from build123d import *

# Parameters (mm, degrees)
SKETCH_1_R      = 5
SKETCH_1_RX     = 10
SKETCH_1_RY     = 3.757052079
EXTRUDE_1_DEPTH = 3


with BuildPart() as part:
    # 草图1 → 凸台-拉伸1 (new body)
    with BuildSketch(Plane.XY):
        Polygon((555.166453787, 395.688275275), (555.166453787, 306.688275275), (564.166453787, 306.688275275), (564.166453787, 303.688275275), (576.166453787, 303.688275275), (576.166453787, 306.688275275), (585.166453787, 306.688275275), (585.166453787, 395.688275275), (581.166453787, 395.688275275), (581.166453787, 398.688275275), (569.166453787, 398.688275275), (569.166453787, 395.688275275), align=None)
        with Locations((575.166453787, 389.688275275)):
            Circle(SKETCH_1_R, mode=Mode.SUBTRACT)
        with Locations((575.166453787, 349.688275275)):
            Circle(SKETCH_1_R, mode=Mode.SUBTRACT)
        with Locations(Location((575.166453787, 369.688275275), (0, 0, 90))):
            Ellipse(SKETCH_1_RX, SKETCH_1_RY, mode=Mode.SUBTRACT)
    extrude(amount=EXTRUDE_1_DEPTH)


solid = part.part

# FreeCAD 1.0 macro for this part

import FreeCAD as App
import Part
import Sketcher
from FreeCAD import Vector

doc = App.newDocument("Part")
body = doc.addObject("PartDesign::Body", "Body")

sketch1 = body.newObject("Sketcher::SketchObject", "Sketch")
sketch1.AttachmentSupport = (doc.getObject("XY_Plane"), [""])
sketch1.MapMode = "FlatFace"
sketch1.addGeometry(Part.LineSegment(Vector(555.166454, 395.688275, 0), Vector(555.166454, 306.688275, 0)), False)
sketch1.addGeometry(Part.LineSegment(Vector(555.166454, 306.688275, 0), Vector(564.166454, 306.688275, 0)), False)
sketch1.addGeometry(Part.LineSegment(Vector(564.166454, 306.688275, 0), Vector(564.166454, 303.688275, 0)), False)
sketch1.addGeometry(Part.LineSegment(Vector(564.166454, 303.688275, 0), Vector(576.166454, 303.688275, 0)), False)
sketch1.addGeometry(Part.LineSegment(Vector(576.166454, 303.688275, 0), Vector(576.166454, 306.688275, 0)), False)
sketch1.addGeometry(Part.LineSegment(Vector(576.166454, 306.688275, 0), Vector(585.166454, 306.688275, 0)), False)
sketch1.addGeometry(Part.LineSegment(Vector(585.166454, 306.688275, 0), Vector(585.166454, 395.688275, 0)), False)
sketch1.addGeometry(Part.LineSegment(Vector(585.166454, 395.688275, 0), Vector(581.166454, 395.688275, 0)), False)
sketch1.addGeometry(Part.LineSegment(Vector(581.166454, 395.688275, 0), Vector(581.166454, 398.688275, 0)), False)
sketch1.addGeometry(Part.LineSegment(Vector(581.166454, 398.688275, 0), Vector(569.166454, 398.688275, 0)), False)
sketch1.addGeometry(Part.LineSegment(Vector(569.166454, 398.688275, 0), Vector(569.166454, 395.688275, 0)), False)
sketch1.addGeometry(Part.LineSegment(Vector(569.166454, 395.688275, 0), Vector(555.166454, 395.688275, 0)), False)
sketch1.addGeometry(Part.Circle(Vector(575.166454, 349.688275, 0), Vector(0, 0, 1), 5), False)
sketch1.addGeometry(Part.Ellipse(Vector(575.166454, 379.688275, 0), Vector(571.409402, 369.688275, 0), Vector(575.166454, 369.688275, 0)), False)
sketch1.addGeometry(Part.Circle(Vector(575.166454, 389.688275, 0), Vector(0, 0, 1), 5), False)
sketch1.addConstraint(Sketcher.Constraint("Block", 13))
sketch1.addConstraint(Sketcher.Constraint("Coincident", 0, 2, 1, 1))
sketch1.addConstraint(Sketcher.Constraint("Coincident", 1, 2, 2, 1))
sketch1.addConstraint(Sketcher.Constraint("Coincident", 2, 2, 3, 1))
sketch1.addConstraint(Sketcher.Constraint("Coincident", 3, 2, 4, 1))
sketch1.addConstraint(Sketcher.Constraint("Coincident", 4, 2, 5, 1))
sketch1.addConstraint(Sketcher.Constraint("Coincident", 5, 2, 6, 1))
sketch1.addConstraint(Sketcher.Constraint("Coincident", 6, 2, 7, 1))
sketch1.addConstraint(Sketcher.Constraint("Coincident", 7, 2, 8, 1))
sketch1.addConstraint(Sketcher.Constraint("Coincident", 8, 2, 9, 1))
sketch1.addConstraint(Sketcher.Constraint("Coincident", 9, 2, 10, 1))
sketch1.addConstraint(Sketcher.Constraint("Coincident", 10, 2, 11, 1))
sketch1.addConstraint(Sketcher.Constraint("Coincident", 11, 2, 0, 1))
sketch1.addConstraint(Sketcher.Constraint("Vertical", 0))
sketch1.addConstraint(Sketcher.Constraint("Horizontal", 1))
sketch1.addConstraint(Sketcher.Constraint("Vertical", 2))
sketch1.addConstraint(Sketcher.Constraint("Horizontal", 3))
sketch1.addConstraint(Sketcher.Constraint("Vertical", 4))
sketch1.addConstraint(Sketcher.Constraint("Horizontal", 5))
sketch1.addConstraint(Sketcher.Constraint("Vertical", 6))
sketch1.addConstraint(Sketcher.Constraint("Horizontal", 7))
sketch1.addConstraint(Sketcher.Constraint("Vertical", 8))
sketch1.addConstraint(Sketcher.Constraint("Horizontal", 9))
sketch1.addConstraint(Sketcher.Constraint("Vertical", 10))
sketch1.addConstraint(Sketcher.Constraint("Horizontal", 11))
sketch1.addConstraint(Sketcher.Constraint("Equal", 12, 14))
sketch1.addConstraint(Sketcher.Constraint("Horizontal", 1, 2, 4, 2))
sketch1.addConstraint(Sketcher.Constraint("Horizontal", 7, 2, 10, 2))
sketch1.addConstraint(Sketcher.Constraint("Vertical", 12, 3, 14, 3))
sketch1.addConstraint(Sketcher.Constraint("Equal", 1, 5))
sketch1.addConstraint(Sketcher.Constraint("Equal", 3, 9))
sketch1.addConstraint(Sketcher.Constraint("Equal", 4, 8))
sketch1.addConstraint(Sketcher.Constraint("Diameter", 12, 10.0))
sketch1.addConstraint(Sketcher.Constraint("DistanceX", 1, 1, 1, 2, 9.0))
sketch1.addConstraint(Sketcher.Constraint("DistanceX", 3, 1, 3, 2, 12.0))
sketch1.addConstraint(Sketcher.Constraint("DistanceX", 7, 2, 7, 1, 4.0))
sketch1.addConstraint(Sketcher.Constraint("DistanceY", 0, 2, 0, 1, 89.0))
sketch1.addConstraint(Sketcher.Constraint("DistanceY", 2, 2, 2, 1, 3.0))
sketch1.addConstraint(Sketcher.Constraint("DistanceY", 12, 3, 14, 3, 40.0))
sketch1.addConstraint(Sketcher.Constraint("DistanceX", 0, 2, 12, 3, 20.0))
sketch1.addConstraint(Sketcher.Constraint("DistanceY", 0, 2, 12, 3, 43.0))
sketch1.addConstraint(Sketcher.Constraint("DistanceX", -1, 1, 12, 3, 575.166454))
sketch1.addConstraint(Sketcher.Constraint("DistanceY", -1, 1, 12, 3, 349.688275))
pad1 = body.newObject("PartDesign::Pad", "Pad")
pad1.Profile = sketch1
pad1.Length = 3

doc.recompute()
